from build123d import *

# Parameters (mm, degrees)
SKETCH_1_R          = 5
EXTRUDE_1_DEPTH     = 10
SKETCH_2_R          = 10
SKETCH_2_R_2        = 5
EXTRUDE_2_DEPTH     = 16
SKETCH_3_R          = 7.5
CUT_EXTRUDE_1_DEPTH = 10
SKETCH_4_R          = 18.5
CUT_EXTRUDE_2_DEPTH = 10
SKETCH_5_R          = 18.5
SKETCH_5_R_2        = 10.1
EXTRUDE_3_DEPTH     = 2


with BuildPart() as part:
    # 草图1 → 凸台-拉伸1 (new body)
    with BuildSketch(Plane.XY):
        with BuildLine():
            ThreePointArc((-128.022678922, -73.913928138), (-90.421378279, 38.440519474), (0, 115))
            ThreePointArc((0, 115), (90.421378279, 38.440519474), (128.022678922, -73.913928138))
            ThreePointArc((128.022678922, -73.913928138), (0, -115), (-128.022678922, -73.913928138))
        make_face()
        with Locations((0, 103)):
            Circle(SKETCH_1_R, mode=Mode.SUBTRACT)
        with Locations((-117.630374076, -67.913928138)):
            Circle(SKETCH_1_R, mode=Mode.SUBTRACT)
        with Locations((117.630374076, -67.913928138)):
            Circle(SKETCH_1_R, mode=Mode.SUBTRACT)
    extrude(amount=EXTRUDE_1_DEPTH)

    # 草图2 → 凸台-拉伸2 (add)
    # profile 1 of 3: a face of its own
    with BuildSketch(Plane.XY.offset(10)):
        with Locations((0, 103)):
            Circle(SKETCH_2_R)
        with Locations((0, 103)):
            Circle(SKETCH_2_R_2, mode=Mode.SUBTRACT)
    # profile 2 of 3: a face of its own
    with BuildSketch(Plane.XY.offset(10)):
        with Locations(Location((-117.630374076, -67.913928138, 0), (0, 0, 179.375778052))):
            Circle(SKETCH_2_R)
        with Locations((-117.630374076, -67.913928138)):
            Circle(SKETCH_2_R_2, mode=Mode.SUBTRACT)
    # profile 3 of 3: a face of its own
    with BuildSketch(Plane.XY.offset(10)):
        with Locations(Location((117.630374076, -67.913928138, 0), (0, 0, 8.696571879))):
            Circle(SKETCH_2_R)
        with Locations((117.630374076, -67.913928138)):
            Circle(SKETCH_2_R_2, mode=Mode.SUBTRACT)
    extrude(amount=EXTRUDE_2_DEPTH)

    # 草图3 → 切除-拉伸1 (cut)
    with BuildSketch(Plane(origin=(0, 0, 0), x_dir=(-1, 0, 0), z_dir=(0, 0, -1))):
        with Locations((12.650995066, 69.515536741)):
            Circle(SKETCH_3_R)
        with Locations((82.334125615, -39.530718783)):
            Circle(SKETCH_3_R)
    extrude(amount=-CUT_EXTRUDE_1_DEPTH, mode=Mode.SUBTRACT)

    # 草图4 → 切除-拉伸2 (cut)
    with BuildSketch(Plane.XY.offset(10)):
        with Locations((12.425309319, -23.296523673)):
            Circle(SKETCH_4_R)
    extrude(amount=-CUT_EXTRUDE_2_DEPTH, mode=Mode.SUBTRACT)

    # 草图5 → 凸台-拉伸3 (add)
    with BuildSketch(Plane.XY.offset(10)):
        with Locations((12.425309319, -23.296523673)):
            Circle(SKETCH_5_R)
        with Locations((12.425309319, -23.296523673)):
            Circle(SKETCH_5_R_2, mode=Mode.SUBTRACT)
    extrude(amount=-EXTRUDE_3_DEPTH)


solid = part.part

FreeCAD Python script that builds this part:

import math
import FreeCAD as App
import Part
import Sketcher
from FreeCAD import Vector

doc = App.newDocument("Part")
params = doc.addObject("Spreadsheet::Sheet", "Params")
for row, (alias, value) in enumerate([
    ("sketch1_diameter", "10 mm"),
    ("sketch1_radius", "220 mm"),
    ("pad1_length", "10 mm"),
    ("sketch2_diameter", "20 mm"),
    ("sketch2_diameter2", "10 mm"),
    ("pad2_length", "16 mm"),
    ("sketch3_diameter", "15 mm"),
    ("pocket1_length", "10 mm"),
    ("sketch4_diameter", "37 mm"),
    ("pocket2_length", "10 mm"),
    ("sketch5_diameter", "37 mm"),
    ("sketch5_diameter2", "20.2 mm"),
    ("pad3_length", "2 mm"),
], start=1):
    params.set(f"A{row}", alias)
    params.set(f"B{row}", "=" + value)
    params.setAlias(f"B{row}", alias)

body = doc.addObject("PartDesign::Body", "Body")

# Sketch on XY plane
sketch1 = doc.addObject("Sketcher::SketchObject", "Sketch")
body.addObject(sketch1)
sketch1.AttachmentSupport = (doc.XY_Plane, [""])
sketch1.MapMode = "FlatFace"
sketch1.addGeometry([
    Part.ArcOfCircle(Part.Circle(Vector(91.698918, -84.97827, 0), Vector(0, 0, 1), 220), math.radians(114.633558), math.radians(177.117238)),  # 0
    Part.ArcOfCircle(Part.Circle(Vector(0, 105, 0), Vector(0, 0, 1), 220), math.radians(-125.585788), math.radians(-54.414212)),  # 1
    Part.ArcOfCircle(Part.Circle(Vector(-91.698918, -84.97827, 0), Vector(0, 0, 1), 220), math.radians(2.882762), math.radians(65.366442)),  # 2
    Part.Circle(Vector(117.630374, -67.913928, 0), Vector(0, 0, 1), 5),  # 3
    Part.Circle(Vector(-117.630374, -67.913928, 0), Vector(0, 0, 1), 5),  # 4
    Part.Circle(Vector(0, 103, 0), Vector(0, 0, 1), 5),  # 5
], False)
sketch1.addConstraint([
    Sketcher.Constraint("Coincident", 0, 2, 1, 1),
    Sketcher.Constraint("Coincident", 1, 2, 2, 1),
    Sketcher.Constraint("Coincident", 2, 2, 0, 1),
    Sketcher.Constraint("Equal", 0, 1),
    Sketcher.Constraint("Equal", 1, 2),
    Sketcher.Constraint("Equal", 3, 4),
    Sketcher.Constraint("Equal", 4, 5),
    Sketcher.Constraint("Symmetric", 0, 3, 2, 3, -2),
    Sketcher.Constraint("Symmetric", 3, 3, 4, 3, -2),
    Sketcher.Constraint("PointOnObject", 1, 3, -2),
    Sketcher.Constraint("PointOnObject", 5, 3, -2),
    Sketcher.Constraint("Diameter", 3, 10.0),
    Sketcher.Constraint("Radius", 0, 220.0),
    Sketcher.Constraint("DistanceY", -1, 1, 1, 3, 105.0),
    Sketcher.Constraint("DistanceY", -1, 1, 5, 3, 103.0),
    Sketcher.Constraint("DistanceY", -1, 1, 2, 2, 115.0),
    Sketcher.Constraint("DistanceY", 0, 2, 4, 3, 6.0),
    Sketcher.Constraint("DistanceX", -1, 1, 0, 3, 91.698918),
    Sketcher.Constraint("DistanceX", 4, 3, 3, 3, 235.260748),
])
sketch1.setExpression("Constraints[11]", "Params.sketch1_diameter")
sketch1.setExpression("Constraints[12]", "Params.sketch1_radius")
pad1 = doc.addObject("PartDesign::Pad", "Pad")
body.addObject(pad1)
pad1.Profile = sketch1
pad1.setExpression("Length", "Params.pad1_length")

# Sketch on XY plane
sketch2 = doc.addObject("Sketcher::SketchObject", "Sketch001")
body.addObject(sketch2)
sketch2.AttachmentSupport = (doc.XY_Plane, [""])
sketch2.MapMode = "FlatFace"
sketch2.AttachmentOffset = App.Placement(Vector(0, 0, 10), App.Rotation())
sketch2.addGeometry([
    Part.Circle(Vector(0, 103, 0), Vector(0, 0, 1), 10),  # 0
    Part.Circle(Vector(0, 103, 0), Vector(0, 0, 1), 5),  # 1
    Part.Circle(Vector(-117.630374, -67.913928, 0), Vector(0, 0, 1), 10),  # 2
    Part.Circle(Vector(-117.630374, -67.913928, 0), Vector(0, 0, 1), 5),  # 3
    Part.Circle(Vector(117.630374, -67.913928, 0), Vector(0, 0, 1), 10),  # 4
    Part.Circle(Vector(117.630374, -67.913928, 0), Vector(0, 0, 1), 5),  # 5
], False)
sketch2.addConstraint([
    Sketcher.Constraint("Coincident", 1, 3, 0, 3),
    Sketcher.Constraint("Coincident", 3, 3, 2, 3),
    Sketcher.Constraint("Coincident", 5, 3, 4, 3),
    Sketcher.Constraint("Equal", 0, 2),
    Sketcher.Constraint("Equal", 1, 3),
    Sketcher.Constraint("Equal", 2, 4),
    Sketcher.Constraint("Equal", 3, 5),
    Sketcher.Constraint("Symmetric", 2, 3, 4, 3, -2),
    Sketcher.Constraint("PointOnObject", 0, 3, -2),
    Sketcher.Constraint("Diameter", 0, 20.0),
    Sketcher.Constraint("Diameter", 1, 10.0),
    Sketcher.Constraint("DistanceY", -1, 1, 0, 3, 103.0),
    Sketcher.Constraint("DistanceY", 2, 3, -1, 1, 67.913928),
    Sketcher.Constraint("DistanceX", 2, 3, 4, 3, 235.260748),
])
sketch2.setExpression("Constraints[9]", "Params.sketch2_diameter")
sketch2.setExpression("Constraints[10]", "Params.sketch2_diameter2")
pad2 = doc.addObject("PartDesign::Pad", "Pad001")
body.addObject(pad2)
pad2.Profile = sketch2
pad2.setExpression("Length", "Params.pad2_length")

# Sketch on XY plane
sketch3 = doc.addObject("Sketcher::SketchObject", "Sketch002")
body.addObject(sketch3)
sketch3.AttachmentSupport = (doc.XY_Plane, [""])
sketch3.MapMode = "FlatFace"
sketch3.addGeometry([
    Part.Circle(Vector(-12.650995, 69.515537, 0), Vector(0, 0, 1), 7.5),
    Part.Circle(Vector(-82.334126, -39.530719, 0), Vector(0, 0, 1), 7.5),
], False)
sketch3.addConstraint([
    Sketcher.Constraint("Equal", 0, 1),
    Sketcher.Constraint("Diameter", 0, 15.0),
    Sketcher.Constraint("DistanceY", 1, 3, -1, 1, 39.530719),
    Sketcher.Constraint("DistanceX", 1, 3, 0, 3, 69.683131),
    Sketcher.Constraint("DistanceX", 0, 3, -1, 1, 12.650995),
    Sketcher.Constraint("DistanceY", -1, 1, 0, 3, 69.515537),
])
sketch3.setExpression("Constraints[1]", "Params.sketch3_diameter")
pocket1 = doc.addObject("PartDesign::Pocket", "Pocket")
body.addObject(pocket1)
pocket1.Profile = sketch3
pocket1.setExpression("Length", "Params.pocket1_length")
pocket1.Reversed = True

# Sketch on XY plane
sketch4 = doc.addObject("Sketcher::SketchObject", "Sketch003")
body.addObject(sketch4)
sketch4.AttachmentSupport = (doc.XY_Plane, [""])
sketch4.MapMode = "FlatFace"
sketch4.AttachmentOffset = App.Placement(Vector(0, 0, 10), App.Rotation())
sketch4.addGeometry(Part.Circle(Vector(12.425309, -23.296524, 0), Vector(0, 0, 1), 18.5), False)
sketch4.addConstraint([
    Sketcher.Constraint("Diameter", 0, 37.0),
    Sketcher.Constraint("DistanceX", -1, 1, 0, 3, 12.425309),
    Sketcher.Constraint("DistanceY", 0, 3, -1, 1, 23.296524),
])
sketch4.setExpression("Constraints[0]", "Params.sketch4_diameter")
pocket2 = doc.addObject("PartDesign::Pocket", "Pocket001")
body.addObject(pocket2)
pocket2.Profile = sketch4
pocket2.setExpression("Length", "Params.pocket2_length")

# Sketch on XY plane
sketch5 = doc.addObject("Sketcher::SketchObject", "Sketch004")
body.addObject(sketch5)
sketch5.AttachmentSupport = (doc.XY_Plane, [""])
sketch5.MapMode = "FlatFace"
sketch5.AttachmentOffset = App.Placement(Vector(0, 0, 10), App.Rotation())
sketch5.addGeometry([
    Part.Circle(Vector(12.425309, -23.296524, 0), Vector(0, 0, 1), 18.5),
    Part.Circle(Vector(12.425309, -23.296524, 0), Vector(0, 0, 1), 10.1),
], False)
sketch5.addConstraint([
    Sketcher.Constraint("Coincident", 1, 3, 0, 3),
    Sketcher.Constraint("Diameter", 0, 37.0),
    Sketcher.Constraint("Diameter", 1, 20.2),
    Sketcher.Constraint("DistanceX", -1, 1, 0, 3, 12.425309),
    Sketcher.Constraint("DistanceY", 0, 3, -1, 1, 23.296524),
])
sketch5.setExpression("Constraints[1]", "Params.sketch5_diameter")
sketch5.setExpression("Constraints[2]", "Params.sketch5_diameter2")
pad3 = doc.addObject("PartDesign::Pad", "Pad002")
body.addObject(pad3)
pad3.Profile = sketch5
pad3.setExpression("Length", "Params.pad3_length")
pad3.Reversed = True

doc.recompute()
